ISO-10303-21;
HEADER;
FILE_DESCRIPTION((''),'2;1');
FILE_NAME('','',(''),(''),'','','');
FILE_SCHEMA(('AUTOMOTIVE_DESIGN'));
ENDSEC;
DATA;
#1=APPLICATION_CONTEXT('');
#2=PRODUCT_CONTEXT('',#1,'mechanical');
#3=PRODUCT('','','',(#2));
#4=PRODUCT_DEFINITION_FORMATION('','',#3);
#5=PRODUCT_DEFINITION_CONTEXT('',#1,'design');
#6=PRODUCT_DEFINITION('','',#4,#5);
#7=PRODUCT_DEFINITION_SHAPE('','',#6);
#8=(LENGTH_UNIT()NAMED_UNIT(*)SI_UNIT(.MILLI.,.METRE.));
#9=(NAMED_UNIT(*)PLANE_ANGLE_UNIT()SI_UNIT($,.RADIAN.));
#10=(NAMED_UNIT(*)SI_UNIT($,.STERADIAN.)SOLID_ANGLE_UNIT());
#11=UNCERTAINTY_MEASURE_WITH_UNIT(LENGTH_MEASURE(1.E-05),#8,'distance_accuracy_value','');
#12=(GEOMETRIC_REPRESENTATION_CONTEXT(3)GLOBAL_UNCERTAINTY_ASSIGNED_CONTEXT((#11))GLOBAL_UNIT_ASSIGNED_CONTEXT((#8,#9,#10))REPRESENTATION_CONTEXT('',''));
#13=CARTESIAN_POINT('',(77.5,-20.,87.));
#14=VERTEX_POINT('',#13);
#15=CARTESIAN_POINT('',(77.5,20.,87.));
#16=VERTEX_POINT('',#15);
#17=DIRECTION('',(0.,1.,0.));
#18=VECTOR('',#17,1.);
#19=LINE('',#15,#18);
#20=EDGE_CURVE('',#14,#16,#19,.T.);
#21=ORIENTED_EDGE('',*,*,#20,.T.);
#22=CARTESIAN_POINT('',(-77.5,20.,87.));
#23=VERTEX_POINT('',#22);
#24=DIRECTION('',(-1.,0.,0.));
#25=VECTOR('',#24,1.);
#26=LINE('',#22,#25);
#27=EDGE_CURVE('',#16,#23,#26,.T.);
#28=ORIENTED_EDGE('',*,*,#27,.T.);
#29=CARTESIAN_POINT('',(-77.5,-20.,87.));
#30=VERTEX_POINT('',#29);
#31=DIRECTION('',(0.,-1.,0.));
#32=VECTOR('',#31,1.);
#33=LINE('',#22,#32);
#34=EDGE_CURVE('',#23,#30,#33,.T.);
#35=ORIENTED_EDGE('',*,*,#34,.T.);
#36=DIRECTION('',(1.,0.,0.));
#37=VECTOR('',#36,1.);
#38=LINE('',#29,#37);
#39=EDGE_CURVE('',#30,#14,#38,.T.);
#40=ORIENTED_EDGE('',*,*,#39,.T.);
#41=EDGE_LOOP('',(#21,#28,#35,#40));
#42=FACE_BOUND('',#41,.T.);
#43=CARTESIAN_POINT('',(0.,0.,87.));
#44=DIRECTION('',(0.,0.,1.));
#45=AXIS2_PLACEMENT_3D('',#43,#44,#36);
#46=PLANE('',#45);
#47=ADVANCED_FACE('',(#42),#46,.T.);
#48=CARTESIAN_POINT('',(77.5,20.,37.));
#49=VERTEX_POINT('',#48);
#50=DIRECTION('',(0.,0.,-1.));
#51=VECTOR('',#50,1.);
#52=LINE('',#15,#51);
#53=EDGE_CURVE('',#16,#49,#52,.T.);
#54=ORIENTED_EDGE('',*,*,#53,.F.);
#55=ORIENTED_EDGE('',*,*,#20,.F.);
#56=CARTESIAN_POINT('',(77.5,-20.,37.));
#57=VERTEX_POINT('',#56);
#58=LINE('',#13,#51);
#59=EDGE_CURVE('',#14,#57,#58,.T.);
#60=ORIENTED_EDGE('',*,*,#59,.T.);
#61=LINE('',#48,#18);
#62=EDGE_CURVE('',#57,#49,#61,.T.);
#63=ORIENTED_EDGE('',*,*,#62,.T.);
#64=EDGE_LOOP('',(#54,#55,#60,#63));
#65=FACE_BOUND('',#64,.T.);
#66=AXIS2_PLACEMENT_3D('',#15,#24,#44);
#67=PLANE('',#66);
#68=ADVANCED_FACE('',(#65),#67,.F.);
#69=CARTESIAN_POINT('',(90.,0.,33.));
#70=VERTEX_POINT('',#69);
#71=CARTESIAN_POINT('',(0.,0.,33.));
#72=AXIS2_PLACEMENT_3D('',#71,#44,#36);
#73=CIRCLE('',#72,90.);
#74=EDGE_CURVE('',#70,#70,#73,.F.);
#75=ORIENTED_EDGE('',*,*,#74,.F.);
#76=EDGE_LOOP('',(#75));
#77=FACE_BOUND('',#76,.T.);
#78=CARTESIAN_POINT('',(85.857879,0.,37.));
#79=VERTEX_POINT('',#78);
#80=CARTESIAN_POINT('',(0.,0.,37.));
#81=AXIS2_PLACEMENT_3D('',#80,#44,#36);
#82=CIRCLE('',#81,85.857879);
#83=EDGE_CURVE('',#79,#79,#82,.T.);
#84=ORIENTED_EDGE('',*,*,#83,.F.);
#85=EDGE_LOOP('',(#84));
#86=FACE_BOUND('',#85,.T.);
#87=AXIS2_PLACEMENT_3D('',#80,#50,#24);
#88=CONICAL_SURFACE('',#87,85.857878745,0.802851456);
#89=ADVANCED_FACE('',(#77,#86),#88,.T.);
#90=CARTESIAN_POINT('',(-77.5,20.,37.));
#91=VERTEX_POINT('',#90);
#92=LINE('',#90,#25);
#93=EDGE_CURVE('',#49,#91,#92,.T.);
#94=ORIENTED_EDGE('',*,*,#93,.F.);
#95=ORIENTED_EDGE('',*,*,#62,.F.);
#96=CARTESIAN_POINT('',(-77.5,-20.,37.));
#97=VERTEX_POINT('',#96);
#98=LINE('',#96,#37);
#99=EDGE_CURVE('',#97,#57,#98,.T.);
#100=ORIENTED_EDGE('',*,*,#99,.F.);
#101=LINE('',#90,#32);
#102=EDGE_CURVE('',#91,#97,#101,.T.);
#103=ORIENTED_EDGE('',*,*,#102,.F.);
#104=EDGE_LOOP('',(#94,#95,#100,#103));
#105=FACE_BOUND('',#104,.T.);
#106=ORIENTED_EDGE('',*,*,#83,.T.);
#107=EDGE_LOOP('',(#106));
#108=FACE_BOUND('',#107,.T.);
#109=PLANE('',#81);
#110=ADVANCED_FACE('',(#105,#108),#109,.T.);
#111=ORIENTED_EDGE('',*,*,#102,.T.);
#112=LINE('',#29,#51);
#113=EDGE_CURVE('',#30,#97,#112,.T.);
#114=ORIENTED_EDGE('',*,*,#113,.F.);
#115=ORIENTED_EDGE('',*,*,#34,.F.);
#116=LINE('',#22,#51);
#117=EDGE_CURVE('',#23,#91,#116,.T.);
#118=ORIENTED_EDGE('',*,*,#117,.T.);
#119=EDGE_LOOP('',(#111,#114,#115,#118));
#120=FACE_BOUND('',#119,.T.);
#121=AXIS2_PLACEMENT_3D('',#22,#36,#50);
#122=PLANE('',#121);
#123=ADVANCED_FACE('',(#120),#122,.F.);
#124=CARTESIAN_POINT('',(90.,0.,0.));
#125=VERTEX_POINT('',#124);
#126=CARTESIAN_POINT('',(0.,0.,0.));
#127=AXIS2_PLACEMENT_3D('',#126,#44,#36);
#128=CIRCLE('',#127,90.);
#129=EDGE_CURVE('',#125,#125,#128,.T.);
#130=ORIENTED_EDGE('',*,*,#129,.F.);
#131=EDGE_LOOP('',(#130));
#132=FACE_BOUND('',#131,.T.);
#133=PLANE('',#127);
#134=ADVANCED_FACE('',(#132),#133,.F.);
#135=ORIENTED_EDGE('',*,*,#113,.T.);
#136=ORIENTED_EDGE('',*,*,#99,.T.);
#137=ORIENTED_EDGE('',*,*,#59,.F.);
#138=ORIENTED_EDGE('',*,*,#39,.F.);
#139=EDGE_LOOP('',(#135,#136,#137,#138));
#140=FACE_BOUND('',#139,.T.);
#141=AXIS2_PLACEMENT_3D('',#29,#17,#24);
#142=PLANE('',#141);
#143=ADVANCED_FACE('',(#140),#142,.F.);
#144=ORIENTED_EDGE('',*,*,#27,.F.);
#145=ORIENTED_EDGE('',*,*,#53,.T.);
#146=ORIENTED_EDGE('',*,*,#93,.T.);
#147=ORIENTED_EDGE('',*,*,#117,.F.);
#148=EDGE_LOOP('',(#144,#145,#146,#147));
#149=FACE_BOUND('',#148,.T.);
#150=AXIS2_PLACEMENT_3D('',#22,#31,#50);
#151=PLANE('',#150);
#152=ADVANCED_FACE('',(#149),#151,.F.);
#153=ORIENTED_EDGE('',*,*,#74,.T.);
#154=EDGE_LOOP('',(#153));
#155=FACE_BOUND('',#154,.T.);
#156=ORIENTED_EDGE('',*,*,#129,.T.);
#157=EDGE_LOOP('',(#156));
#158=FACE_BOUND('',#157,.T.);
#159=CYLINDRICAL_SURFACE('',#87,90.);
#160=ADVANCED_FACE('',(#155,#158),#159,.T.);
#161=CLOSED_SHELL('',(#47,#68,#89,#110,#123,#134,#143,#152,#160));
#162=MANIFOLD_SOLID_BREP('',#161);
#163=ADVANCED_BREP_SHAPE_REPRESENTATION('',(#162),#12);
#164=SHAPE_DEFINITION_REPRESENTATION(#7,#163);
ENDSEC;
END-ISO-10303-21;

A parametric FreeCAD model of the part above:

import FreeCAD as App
import Part
import Sketcher


def edges_at(feature, points):
    """Names of the edges that pass closest to the given points."""
    edges = feature.Shape.Edges
    near = lambda p: min(range(len(edges)), key=lambda i: edges[i].distToShape(Part.Vertex(*p))[0])
    return sorted({f"Edge{near(p) + 1}" for p in points})

doc = App.newDocument("Part")
body = doc.addObject("PartDesign::Body", "Body")

sketch1 = body.newObject("Sketcher::SketchObject", "Sketch")
sketch1.AttachmentSupport = (doc.getObject("XY_Plane"), [""])
sketch1.MapMode = "FlatFace"
sketch1.addGeometry(Part.Circle(App.Vector(0, 0, 0), App.Vector(0, 0, 1), 90), False)
sketch1.addConstraint([
    Sketcher.Constraint("Coincident", 0, 3, -1, 1),
    Sketcher.Constraint("Diameter", 0, 180.0),
])
pad1 = body.newObject("PartDesign::Pad", "Pad")
pad1.Profile = sketch1
pad1.Length = 37
doc.recompute()

chamfer = body.newObject("PartDesign::Chamfer", "Chamfer")
chamfer.Base = (pad1, edges_at(pad1, [(-90, 0, 37)]))
chamfer.ChamferType = "Two distances"
chamfer.Size = 4
chamfer.Size2 = 4.142121

sketch2 = body.newObject("Sketcher::SketchObject", "Sketch001")
sketch2.AttachmentSupport = (doc.getObject("XY_Plane"), [""])
sketch2.MapMode = "FlatFace"
sketch2.AttachmentOffset = App.Placement(App.Vector(0, 0, 37), App.Rotation())
sketch2.addGeometry([
    Part.LineSegment(App.Vector(-77.5, 20, 0), App.Vector(-77.5, -20, 0)),
    Part.LineSegment(App.Vector(-77.5, -20, 0), App.Vector(77.5, -20, 0)),
    Part.LineSegment(App.Vector(77.5, -20, 0), App.Vector(77.5, 20, 0)),
    Part.LineSegment(App.Vector(77.5, 20, 0), App.Vector(-77.5, 20, 0)),
], False)
sketch2.addConstraint([
    Sketcher.Constraint("Coincident", 0, 2, 1, 1),
    Sketcher.Constraint("Coincident", 1, 2, 2, 1),
    Sketcher.Constraint("Coincident", 2, 2, 3, 1),
    Sketcher.Constraint("Coincident", 3, 2, 0, 1),
    Sketcher.Constraint("Vertical", 0),
    Sketcher.Constraint("Horizontal", 1),
    Sketcher.Constraint("Vertical", 2),
    Sketcher.Constraint("Horizontal", 3),
    Sketcher.Constraint("Symmetric", 0, 2, 2, 2, -1, 1),
    Sketcher.Constraint("DistanceX", 1, 1, 1, 2, 155.0),
    Sketcher.Constraint("DistanceY", 0, 2, 0, 1, 40.0),
])
pad2 = body.newObject("PartDesign::Pad", "Pad001")
pad2.Profile = sketch2
pad2.Length = 50

doc.recompute()
